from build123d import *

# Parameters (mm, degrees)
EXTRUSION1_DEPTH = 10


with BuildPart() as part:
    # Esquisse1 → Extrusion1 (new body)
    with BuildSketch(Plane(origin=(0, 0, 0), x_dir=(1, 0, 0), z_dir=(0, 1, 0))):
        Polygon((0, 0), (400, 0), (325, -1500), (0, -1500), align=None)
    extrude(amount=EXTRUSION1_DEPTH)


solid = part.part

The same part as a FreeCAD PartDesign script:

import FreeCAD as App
import Part
import Sketcher
from FreeCAD import Vector

doc = App.newDocument("Part")
body = doc.addObject("PartDesign::Body", "Body")

# Sketch on XZ plane
sketch1 = body.newObject("Sketcher::SketchObject", "Sketch")
sketch1.AttachmentSupport = (doc.getObject("XZ_Plane"), [""])
sketch1.MapMode = "FlatFace"
sketch1.addGeometry([
    Part.LineSegment(Vector(400, 0, 0), Vector(0, 0, 0)),
    Part.LineSegment(Vector(0, 0, 0), Vector(0, 1500, 0)),
    Part.LineSegment(Vector(0, 1500, 0), Vector(325, 1500, 0)),
    Part.LineSegment(Vector(325, 1500, 0), Vector(400, 0, 0)),
], False)
sketch1.addConstraint([
    Sketcher.Constraint("Coincident", 0, 2, 1, 1),
    Sketcher.Constraint("Coincident", 1, 2, 2, 1),
    Sketcher.Constraint("Coincident", 2, 2, 3, 1),
    Sketcher.Constraint("Coincident", 3, 2, 0, 1),
    Sketcher.Constraint("Horizontal", 0),
    Sketcher.Constraint("Vertical", 1),
    Sketcher.Constraint("Horizontal", 2),
    Sketcher.Constraint("Coincident", 0, 2, -1, 1),
    Sketcher.Constraint("DistanceX", 0, 2, 0, 1, 400.0),
    Sketcher.Constraint("DistanceX", 2, 1, 2, 2, 325.0),
    Sketcher.Constraint("DistanceY", 1, 1, 1, 2, 1500.0),
])
pad1 = body.newObject("PartDesign::Pad", "Pad")
pad1.Profile = sketch1
pad1.Length = 10
pad1.Reversed = True

doc.recompute()
